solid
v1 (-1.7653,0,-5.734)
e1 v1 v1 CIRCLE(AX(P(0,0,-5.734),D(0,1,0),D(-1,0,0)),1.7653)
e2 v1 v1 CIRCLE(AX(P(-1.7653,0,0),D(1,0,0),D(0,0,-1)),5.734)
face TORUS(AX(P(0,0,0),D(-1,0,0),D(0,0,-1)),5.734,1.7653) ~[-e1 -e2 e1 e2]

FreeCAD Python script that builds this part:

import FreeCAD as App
import Part
import Sketcher

V = App.Vector
Q = App.Units.Quantity

doc = App.newDocument("Part")
body = doc.addObject("PartDesign::Body", "Body")

# Sketch on XZ plane
sketch1 = body.newObject("Sketcher::SketchObject", "Sketch")
sketch1.AttachmentSupport = (doc.getObject("XZ_Plane"), [""])
sketch1.MapMode = "FlatFace"
sketch1.addGeometry(Part.Circle(V(0, -5.734, 0), V(0, 0, 1), 1.7653), False)
sketch1.addConstraint([
    Sketcher.Constraint("PointOnObject", 0, 3, -2),
    Sketcher.Constraint("Diameter", 0, Q("0.139 in")),
    Sketcher.Constraint("DistanceY", 0, 3, -1, 1, 5.734),
])
revolution = body.newObject("PartDesign::Revolution", "Revolution")
revolution.Profile = sketch1
revolution.ReferenceAxis = (sketch1, ["H_Axis"])
revolution.Angle = 360

doc.recompute()
